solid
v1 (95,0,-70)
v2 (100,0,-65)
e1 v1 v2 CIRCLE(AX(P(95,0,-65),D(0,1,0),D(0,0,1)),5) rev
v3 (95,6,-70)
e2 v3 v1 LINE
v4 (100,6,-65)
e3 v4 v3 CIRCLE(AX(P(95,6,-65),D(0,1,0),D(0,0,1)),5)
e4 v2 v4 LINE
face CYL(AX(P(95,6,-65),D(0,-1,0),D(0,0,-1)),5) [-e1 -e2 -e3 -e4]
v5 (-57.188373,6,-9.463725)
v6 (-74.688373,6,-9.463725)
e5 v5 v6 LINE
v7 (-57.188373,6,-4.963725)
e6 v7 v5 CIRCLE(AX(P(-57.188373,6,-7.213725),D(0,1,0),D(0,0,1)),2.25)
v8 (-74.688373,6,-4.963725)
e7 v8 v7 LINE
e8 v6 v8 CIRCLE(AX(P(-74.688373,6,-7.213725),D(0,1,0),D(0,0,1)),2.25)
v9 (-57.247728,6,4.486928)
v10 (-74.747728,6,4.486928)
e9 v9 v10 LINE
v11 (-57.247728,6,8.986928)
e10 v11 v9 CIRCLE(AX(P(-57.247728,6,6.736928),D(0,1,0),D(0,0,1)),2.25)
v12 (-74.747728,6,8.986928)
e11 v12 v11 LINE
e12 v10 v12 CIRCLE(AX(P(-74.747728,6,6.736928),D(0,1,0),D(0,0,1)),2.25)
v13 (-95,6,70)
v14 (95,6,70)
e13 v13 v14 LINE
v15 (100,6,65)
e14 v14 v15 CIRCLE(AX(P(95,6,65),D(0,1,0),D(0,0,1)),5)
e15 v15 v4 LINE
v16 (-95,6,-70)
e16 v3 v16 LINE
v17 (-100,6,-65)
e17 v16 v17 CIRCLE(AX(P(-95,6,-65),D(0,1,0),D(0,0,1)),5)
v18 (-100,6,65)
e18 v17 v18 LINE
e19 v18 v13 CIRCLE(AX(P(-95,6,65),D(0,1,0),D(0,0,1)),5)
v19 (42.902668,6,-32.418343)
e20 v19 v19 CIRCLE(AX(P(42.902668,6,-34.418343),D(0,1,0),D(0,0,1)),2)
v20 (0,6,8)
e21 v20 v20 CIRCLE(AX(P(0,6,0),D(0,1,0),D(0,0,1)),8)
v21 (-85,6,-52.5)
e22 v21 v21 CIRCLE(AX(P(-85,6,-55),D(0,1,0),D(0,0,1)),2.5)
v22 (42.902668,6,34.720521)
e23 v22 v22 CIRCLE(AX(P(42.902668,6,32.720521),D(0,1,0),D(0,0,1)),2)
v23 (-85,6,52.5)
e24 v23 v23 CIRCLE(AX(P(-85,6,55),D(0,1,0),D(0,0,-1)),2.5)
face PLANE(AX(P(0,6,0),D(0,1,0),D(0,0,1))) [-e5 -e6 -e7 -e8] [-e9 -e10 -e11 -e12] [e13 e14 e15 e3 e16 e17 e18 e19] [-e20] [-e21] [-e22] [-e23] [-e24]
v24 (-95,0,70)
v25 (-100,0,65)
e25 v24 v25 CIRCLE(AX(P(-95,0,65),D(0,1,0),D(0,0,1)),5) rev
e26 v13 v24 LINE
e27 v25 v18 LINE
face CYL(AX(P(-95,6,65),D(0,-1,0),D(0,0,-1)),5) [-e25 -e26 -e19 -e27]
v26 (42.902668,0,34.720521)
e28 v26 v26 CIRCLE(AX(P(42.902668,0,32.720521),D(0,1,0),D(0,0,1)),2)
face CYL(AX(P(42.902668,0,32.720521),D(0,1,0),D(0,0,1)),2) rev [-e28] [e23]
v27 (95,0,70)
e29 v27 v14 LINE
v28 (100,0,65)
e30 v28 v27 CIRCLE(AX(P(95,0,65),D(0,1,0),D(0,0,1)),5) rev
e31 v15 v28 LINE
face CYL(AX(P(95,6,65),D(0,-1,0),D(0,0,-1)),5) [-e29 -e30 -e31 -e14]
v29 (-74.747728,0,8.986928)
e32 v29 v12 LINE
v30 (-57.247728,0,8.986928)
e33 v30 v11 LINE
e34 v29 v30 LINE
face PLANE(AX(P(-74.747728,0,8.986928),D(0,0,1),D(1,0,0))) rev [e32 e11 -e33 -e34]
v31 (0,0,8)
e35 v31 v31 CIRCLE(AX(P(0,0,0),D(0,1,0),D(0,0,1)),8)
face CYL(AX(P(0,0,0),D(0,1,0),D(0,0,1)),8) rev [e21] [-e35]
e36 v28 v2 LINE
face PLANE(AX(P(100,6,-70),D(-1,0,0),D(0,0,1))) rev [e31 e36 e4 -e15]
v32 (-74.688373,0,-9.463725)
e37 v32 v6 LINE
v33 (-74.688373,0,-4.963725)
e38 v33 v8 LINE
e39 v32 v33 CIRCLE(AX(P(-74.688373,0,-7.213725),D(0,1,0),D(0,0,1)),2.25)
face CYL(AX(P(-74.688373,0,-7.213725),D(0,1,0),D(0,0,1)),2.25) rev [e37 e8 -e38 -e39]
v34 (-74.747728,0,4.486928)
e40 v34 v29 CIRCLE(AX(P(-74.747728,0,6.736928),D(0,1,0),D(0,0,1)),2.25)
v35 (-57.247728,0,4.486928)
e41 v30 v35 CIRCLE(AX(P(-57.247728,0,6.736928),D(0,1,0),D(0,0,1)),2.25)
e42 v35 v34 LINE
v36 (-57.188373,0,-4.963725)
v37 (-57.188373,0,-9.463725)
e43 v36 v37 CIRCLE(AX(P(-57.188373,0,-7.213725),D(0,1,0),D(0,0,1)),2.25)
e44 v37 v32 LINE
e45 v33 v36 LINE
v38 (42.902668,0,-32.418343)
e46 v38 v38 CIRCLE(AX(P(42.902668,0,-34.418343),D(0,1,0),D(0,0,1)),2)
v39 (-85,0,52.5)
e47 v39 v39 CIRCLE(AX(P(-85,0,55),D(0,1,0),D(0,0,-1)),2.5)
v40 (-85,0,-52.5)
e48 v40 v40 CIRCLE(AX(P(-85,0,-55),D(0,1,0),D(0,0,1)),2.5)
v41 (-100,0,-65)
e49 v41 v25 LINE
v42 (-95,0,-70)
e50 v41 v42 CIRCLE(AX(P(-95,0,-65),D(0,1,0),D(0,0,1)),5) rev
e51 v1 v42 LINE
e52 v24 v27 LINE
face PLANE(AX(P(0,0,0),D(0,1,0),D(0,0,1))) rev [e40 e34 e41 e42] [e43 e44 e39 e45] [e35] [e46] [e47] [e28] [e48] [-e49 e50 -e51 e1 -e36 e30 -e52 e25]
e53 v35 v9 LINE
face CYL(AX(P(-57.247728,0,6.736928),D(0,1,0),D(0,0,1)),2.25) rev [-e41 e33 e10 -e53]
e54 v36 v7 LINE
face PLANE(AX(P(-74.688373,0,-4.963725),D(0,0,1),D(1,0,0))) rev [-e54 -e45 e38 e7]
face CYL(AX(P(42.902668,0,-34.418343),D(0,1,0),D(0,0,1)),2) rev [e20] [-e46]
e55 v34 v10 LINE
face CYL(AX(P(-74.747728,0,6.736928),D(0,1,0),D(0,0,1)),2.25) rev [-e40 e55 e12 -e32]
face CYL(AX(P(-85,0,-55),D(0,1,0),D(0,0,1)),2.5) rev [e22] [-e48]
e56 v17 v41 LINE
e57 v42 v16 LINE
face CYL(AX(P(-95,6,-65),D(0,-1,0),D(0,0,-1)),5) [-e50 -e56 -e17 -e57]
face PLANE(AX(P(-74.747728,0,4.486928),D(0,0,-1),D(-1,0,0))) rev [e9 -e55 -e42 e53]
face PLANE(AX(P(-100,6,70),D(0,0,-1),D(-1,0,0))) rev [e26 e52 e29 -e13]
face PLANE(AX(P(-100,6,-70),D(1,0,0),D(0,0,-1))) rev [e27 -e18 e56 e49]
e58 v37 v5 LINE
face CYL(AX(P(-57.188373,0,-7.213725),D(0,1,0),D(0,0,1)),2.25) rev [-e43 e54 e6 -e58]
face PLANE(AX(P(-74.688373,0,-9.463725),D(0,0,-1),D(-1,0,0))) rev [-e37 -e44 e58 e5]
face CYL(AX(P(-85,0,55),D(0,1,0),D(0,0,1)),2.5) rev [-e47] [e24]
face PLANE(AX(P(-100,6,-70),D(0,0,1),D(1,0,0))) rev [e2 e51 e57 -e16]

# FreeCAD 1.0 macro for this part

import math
import FreeCAD as App
import Part
import Sketcher
from FreeCAD import Vector
Q = App.Units.Quantity


def edges_at(feature, points):
    """Names of the edges that pass closest to the given points."""
    edges = feature.Shape.Edges
    near = lambda p: min(range(len(edges)), key=lambda i: edges[i].distToShape(Part.Vertex(*p))[0])
    return sorted({f"Edge{near(p) + 1}" for p in points})

doc = App.newDocument("Part")
body = doc.addObject("PartDesign::Body", "Body")

sketch1 = doc.addObject("Sketcher::SketchObject", "Sketch")
body.addObject(sketch1)
sketch1.AttachmentSupport = (doc.XZ_Plane, [""])
sketch1.MapMode = "FlatFace"
sketch1.addGeometry(Part.LineSegment(Vector(-100, -70, 0), Vector(-100, 70, 0)), False)
sketch1.addGeometry(Part.LineSegment(Vector(-100, 70, 0), Vector(100, 70, 0)), False)
sketch1.addGeometry(Part.LineSegment(Vector(100, 70, 0), Vector(100, -70, 0)), False)
sketch1.addGeometry(Part.LineSegment(Vector(100, -70, 0), Vector(-100, -70, 0)), False)
sketch1.addConstraint(Sketcher.Constraint("Coincident", 0, 2, 1, 1))
sketch1.addConstraint(Sketcher.Constraint("Coincident", 1, 2, 2, 1))
sketch1.addConstraint(Sketcher.Constraint("Coincident", 2, 2, 3, 1))
sketch1.addConstraint(Sketcher.Constraint("Coincident", 3, 2, 0, 1))
sketch1.addConstraint(Sketcher.Constraint("Vertical", 0))
sketch1.addConstraint(Sketcher.Constraint("Horizontal", 1))
sketch1.addConstraint(Sketcher.Constraint("Vertical", 2))
sketch1.addConstraint(Sketcher.Constraint("Horizontal", 3))
sketch1.addConstraint(Sketcher.Constraint("Symmetric", 0, 2, 2, 2, -1, 1))
sketch1.addConstraint(Sketcher.Constraint("DistanceX", 1, 1, 1, 2, Q("200 mm")))
sketch1.addConstraint(Sketcher.Constraint("DistanceY", 0, 1, 0, 2, Q("140 mm")))
pad1 = doc.addObject("PartDesign::Pad", "Pad")
body.addObject(pad1)
pad1.Profile = sketch1
pad1.Length = 6
pad1.Reversed = True
doc.recompute()

fillet = doc.addObject("PartDesign::Fillet", "Fillet")
body.addObject(fillet)
fillet.Base = (pad1, edges_at(pad1, [
    (100, 3, 70),
    (-100, 3, 70),
    (-100, 3, -70),
    (100, 3, -70),
]))
fillet.Radius = 5

sketch2 = doc.addObject("Sketcher::SketchObject", "Sketch001")
body.addObject(sketch2)
sketch2.AttachmentSupport = (doc.XZ_Plane, [""])
sketch2.MapMode = "FlatFace"
sketch2.AttachmentOffset = App.Placement(Vector(0, 0, -6), App.Rotation())
sketch2.addGeometry(Part.Circle(Vector(-85, -55, 0), Vector(0, 0, 1), 2.5), False)
sketch2.addGeometry(Part.Circle(Vector(-85, 55, 0), Vector(0, 0, 1), 2.5), False)
sketch2.addConstraint(Sketcher.Constraint("Equal", 0, 1))
sketch2.addConstraint(Sketcher.Constraint("Symmetric", 0, 3, 1, 3, -1))
sketch2.addConstraint(Sketcher.Constraint("Diameter", 0, Q("5 mm")))
sketch2.addConstraint(Sketcher.Constraint("DistanceX", 0, 3, -1, 1, Q("85 mm")))
sketch2.addConstraint(Sketcher.Constraint("DistanceY", 0, 3, -1, 1, Q("55 mm")))
pocket1 = doc.addObject("PartDesign::Pocket", "Pocket")
body.addObject(pocket1)
pocket1.Profile = sketch2
pocket1.Type = "ThroughAll"
pocket1.Reversed = True

sketch3 = doc.addObject("Sketcher::SketchObject", "Sketch002")
body.addObject(sketch3)
sketch3.AttachmentSupport = (doc.XZ_Plane, [""])
sketch3.MapMode = "FlatFace"
sketch3.AttachmentOffset = App.Placement(Vector(0, 0, -6), App.Rotation())
sketch3.addGeometry(Part.Circle(Vector(0, 0, 0), Vector(0, 0, 1), 8), False)
sketch3.addConstraint(Sketcher.Constraint("Coincident", 0, 3, -1, 1))
sketch3.addConstraint(Sketcher.Constraint("Diameter", 0, Q("16 mm")))
pocket2 = doc.addObject("PartDesign::Pocket", "Pocket001")
body.addObject(pocket2)
pocket2.Profile = sketch3
pocket2.Type = "ThroughAll"
pocket2.Reversed = True

sketch4 = doc.addObject("Sketcher::SketchObject", "Sketch003")
body.addObject(sketch4)
sketch4.AttachmentSupport = (doc.XZ_Plane, [""])
sketch4.MapMode = "FlatFace"
sketch4.AttachmentOffset = App.Placement(Vector(0, 0, -6), App.Rotation())
sketch4.addGeometry(Part.LineSegment(Vector(-57.188373, -9.463725, 0), Vector(-74.688373, -9.463725, 0)), False)
sketch4.addGeometry(Part.ArcOfCircle(Part.Circle(Vector(-74.688373, -7.213725, 0), Vector(0, 0, 1), 2.25), math.radians(90), math.radians(270)), False)
sketch4.addGeometry(Part.LineSegment(Vector(-74.688373, -4.963725, 0), Vector(-57.188373, -4.963725, 0)), False)
sketch4.addGeometry(Part.ArcOfCircle(Part.Circle(Vector(-57.188373, -7.213725, 0), Vector(0, 0, 1), 2.25), math.radians(-90), math.radians(90)), False)
sketch4.addGeometry(Part.LineSegment(Vector(-57.247728, 4.486928, 0), Vector(-74.747728, 4.486928, 0)), False)
sketch4.addGeometry(Part.ArcOfCircle(Part.Circle(Vector(-74.747728, 6.736928, 0), Vector(0, 0, 1), 2.25), math.radians(90), math.radians(270)), False)
sketch4.addGeometry(Part.LineSegment(Vector(-74.747728, 8.986928, 0), Vector(-57.247728, 8.986928, 0)), False)
sketch4.addGeometry(Part.ArcOfCircle(Part.Circle(Vector(-57.247728, 6.736928, 0), Vector(0, 0, 1), 2.25), math.radians(-90), math.radians(90)), False)
sketch4.addConstraint(Sketcher.Constraint("Tangent", 0, 2, 1, 2))
sketch4.addConstraint(Sketcher.Constraint("Tangent", 1, 1, 2, 1))
sketch4.addConstraint(Sketcher.Constraint("Tangent", 2, 2, 3, 2))
sketch4.addConstraint(Sketcher.Constraint("Tangent", 3, 1, 0, 1))
sketch4.addConstraint(Sketcher.Constraint("Tangent", 4, 2, 5, 2))
sketch4.addConstraint(Sketcher.Constraint("Tangent", 5, 1, 6, 1))
sketch4.addConstraint(Sketcher.Constraint("Tangent", 6, 2, 7, 2))
sketch4.addConstraint(Sketcher.Constraint("Tangent", 7, 1, 4, 1))
sketch4.addConstraint(Sketcher.Constraint("Horizontal", 0))
sketch4.addConstraint(Sketcher.Constraint("Horizontal", 2))
sketch4.addConstraint(Sketcher.Constraint("Horizontal", 4))
sketch4.addConstraint(Sketcher.Constraint("Horizontal", 6))
sketch4.addConstraint(Sketcher.Constraint("Equal", 3, 5))
sketch4.addConstraint(Sketcher.Constraint("Equal", 2, 4))
sketch4.addConstraint(Sketcher.Constraint("Radius", 1, Q("2.25 mm")))
sketch4.addConstraint(Sketcher.Constraint("DistanceX", 0, 2, 0, 1, Q("17.5 mm")))
sketch4.addConstraint(Sketcher.Constraint("DistanceY", -1, 1, 5, 3, Q("6.736928 mm")))
sketch4.addConstraint(Sketcher.Constraint("DistanceX", 1, 3, -1, 1, Q("74.688373 mm")))
sketch4.addConstraint(Sketcher.Constraint("DistanceY", 1, 3, -1, 1, Q("7.213725 mm")))
sketch4.addConstraint(Sketcher.Constraint("DistanceX", 5, 3, -1, 1, Q("74.747728 mm")))
pocket3 = doc.addObject("PartDesign::Pocket", "Pocket002")
body.addObject(pocket3)
pocket3.Profile = sketch4
pocket3.Type = "ThroughAll"
pocket3.Reversed = True

sketch5 = doc.addObject("Sketcher::SketchObject", "Sketch004")
body.addObject(sketch5)
sketch5.AttachmentSupport = (doc.XZ_Plane, [""])
sketch5.MapMode = "FlatFace"
sketch5.AttachmentOffset = App.Placement(Vector(0, 0, -6), App.Rotation())
sketch5.addGeometry(Part.Circle(Vector(42.902668, 32.720521, 0), Vector(0, 0, 1), 2), False)
sketch5.addGeometry(Part.Circle(Vector(42.902668, -34.418343, 0), Vector(0, 0, 1), 2), False)
sketch5.addConstraint(Sketcher.Constraint("Equal", 0, 1))
sketch5.addConstraint(Sketcher.Constraint("Vertical", 0, 3, 1, 3))
sketch5.addConstraint(Sketcher.Constraint("Diameter", 0, Q("4 mm")))
sketch5.addConstraint(Sketcher.Constraint("DistanceX", -1, 1, 0, 3, Q("42.902668 mm")))
sketch5.addConstraint(Sketcher.Constraint("DistanceY", -1, 1, 0, 3, Q("32.720521 mm")))
sketch5.addConstraint(Sketcher.Constraint("DistanceY", 1, 3, -1, 1, Q("34.418343 mm")))
pocket4 = doc.addObject("PartDesign::Pocket", "Pocket003")
body.addObject(pocket4)
pocket4.Profile = sketch5
pocket4.Type = "ThroughAll"
pocket4.Reversed = True

doc.recompute()
